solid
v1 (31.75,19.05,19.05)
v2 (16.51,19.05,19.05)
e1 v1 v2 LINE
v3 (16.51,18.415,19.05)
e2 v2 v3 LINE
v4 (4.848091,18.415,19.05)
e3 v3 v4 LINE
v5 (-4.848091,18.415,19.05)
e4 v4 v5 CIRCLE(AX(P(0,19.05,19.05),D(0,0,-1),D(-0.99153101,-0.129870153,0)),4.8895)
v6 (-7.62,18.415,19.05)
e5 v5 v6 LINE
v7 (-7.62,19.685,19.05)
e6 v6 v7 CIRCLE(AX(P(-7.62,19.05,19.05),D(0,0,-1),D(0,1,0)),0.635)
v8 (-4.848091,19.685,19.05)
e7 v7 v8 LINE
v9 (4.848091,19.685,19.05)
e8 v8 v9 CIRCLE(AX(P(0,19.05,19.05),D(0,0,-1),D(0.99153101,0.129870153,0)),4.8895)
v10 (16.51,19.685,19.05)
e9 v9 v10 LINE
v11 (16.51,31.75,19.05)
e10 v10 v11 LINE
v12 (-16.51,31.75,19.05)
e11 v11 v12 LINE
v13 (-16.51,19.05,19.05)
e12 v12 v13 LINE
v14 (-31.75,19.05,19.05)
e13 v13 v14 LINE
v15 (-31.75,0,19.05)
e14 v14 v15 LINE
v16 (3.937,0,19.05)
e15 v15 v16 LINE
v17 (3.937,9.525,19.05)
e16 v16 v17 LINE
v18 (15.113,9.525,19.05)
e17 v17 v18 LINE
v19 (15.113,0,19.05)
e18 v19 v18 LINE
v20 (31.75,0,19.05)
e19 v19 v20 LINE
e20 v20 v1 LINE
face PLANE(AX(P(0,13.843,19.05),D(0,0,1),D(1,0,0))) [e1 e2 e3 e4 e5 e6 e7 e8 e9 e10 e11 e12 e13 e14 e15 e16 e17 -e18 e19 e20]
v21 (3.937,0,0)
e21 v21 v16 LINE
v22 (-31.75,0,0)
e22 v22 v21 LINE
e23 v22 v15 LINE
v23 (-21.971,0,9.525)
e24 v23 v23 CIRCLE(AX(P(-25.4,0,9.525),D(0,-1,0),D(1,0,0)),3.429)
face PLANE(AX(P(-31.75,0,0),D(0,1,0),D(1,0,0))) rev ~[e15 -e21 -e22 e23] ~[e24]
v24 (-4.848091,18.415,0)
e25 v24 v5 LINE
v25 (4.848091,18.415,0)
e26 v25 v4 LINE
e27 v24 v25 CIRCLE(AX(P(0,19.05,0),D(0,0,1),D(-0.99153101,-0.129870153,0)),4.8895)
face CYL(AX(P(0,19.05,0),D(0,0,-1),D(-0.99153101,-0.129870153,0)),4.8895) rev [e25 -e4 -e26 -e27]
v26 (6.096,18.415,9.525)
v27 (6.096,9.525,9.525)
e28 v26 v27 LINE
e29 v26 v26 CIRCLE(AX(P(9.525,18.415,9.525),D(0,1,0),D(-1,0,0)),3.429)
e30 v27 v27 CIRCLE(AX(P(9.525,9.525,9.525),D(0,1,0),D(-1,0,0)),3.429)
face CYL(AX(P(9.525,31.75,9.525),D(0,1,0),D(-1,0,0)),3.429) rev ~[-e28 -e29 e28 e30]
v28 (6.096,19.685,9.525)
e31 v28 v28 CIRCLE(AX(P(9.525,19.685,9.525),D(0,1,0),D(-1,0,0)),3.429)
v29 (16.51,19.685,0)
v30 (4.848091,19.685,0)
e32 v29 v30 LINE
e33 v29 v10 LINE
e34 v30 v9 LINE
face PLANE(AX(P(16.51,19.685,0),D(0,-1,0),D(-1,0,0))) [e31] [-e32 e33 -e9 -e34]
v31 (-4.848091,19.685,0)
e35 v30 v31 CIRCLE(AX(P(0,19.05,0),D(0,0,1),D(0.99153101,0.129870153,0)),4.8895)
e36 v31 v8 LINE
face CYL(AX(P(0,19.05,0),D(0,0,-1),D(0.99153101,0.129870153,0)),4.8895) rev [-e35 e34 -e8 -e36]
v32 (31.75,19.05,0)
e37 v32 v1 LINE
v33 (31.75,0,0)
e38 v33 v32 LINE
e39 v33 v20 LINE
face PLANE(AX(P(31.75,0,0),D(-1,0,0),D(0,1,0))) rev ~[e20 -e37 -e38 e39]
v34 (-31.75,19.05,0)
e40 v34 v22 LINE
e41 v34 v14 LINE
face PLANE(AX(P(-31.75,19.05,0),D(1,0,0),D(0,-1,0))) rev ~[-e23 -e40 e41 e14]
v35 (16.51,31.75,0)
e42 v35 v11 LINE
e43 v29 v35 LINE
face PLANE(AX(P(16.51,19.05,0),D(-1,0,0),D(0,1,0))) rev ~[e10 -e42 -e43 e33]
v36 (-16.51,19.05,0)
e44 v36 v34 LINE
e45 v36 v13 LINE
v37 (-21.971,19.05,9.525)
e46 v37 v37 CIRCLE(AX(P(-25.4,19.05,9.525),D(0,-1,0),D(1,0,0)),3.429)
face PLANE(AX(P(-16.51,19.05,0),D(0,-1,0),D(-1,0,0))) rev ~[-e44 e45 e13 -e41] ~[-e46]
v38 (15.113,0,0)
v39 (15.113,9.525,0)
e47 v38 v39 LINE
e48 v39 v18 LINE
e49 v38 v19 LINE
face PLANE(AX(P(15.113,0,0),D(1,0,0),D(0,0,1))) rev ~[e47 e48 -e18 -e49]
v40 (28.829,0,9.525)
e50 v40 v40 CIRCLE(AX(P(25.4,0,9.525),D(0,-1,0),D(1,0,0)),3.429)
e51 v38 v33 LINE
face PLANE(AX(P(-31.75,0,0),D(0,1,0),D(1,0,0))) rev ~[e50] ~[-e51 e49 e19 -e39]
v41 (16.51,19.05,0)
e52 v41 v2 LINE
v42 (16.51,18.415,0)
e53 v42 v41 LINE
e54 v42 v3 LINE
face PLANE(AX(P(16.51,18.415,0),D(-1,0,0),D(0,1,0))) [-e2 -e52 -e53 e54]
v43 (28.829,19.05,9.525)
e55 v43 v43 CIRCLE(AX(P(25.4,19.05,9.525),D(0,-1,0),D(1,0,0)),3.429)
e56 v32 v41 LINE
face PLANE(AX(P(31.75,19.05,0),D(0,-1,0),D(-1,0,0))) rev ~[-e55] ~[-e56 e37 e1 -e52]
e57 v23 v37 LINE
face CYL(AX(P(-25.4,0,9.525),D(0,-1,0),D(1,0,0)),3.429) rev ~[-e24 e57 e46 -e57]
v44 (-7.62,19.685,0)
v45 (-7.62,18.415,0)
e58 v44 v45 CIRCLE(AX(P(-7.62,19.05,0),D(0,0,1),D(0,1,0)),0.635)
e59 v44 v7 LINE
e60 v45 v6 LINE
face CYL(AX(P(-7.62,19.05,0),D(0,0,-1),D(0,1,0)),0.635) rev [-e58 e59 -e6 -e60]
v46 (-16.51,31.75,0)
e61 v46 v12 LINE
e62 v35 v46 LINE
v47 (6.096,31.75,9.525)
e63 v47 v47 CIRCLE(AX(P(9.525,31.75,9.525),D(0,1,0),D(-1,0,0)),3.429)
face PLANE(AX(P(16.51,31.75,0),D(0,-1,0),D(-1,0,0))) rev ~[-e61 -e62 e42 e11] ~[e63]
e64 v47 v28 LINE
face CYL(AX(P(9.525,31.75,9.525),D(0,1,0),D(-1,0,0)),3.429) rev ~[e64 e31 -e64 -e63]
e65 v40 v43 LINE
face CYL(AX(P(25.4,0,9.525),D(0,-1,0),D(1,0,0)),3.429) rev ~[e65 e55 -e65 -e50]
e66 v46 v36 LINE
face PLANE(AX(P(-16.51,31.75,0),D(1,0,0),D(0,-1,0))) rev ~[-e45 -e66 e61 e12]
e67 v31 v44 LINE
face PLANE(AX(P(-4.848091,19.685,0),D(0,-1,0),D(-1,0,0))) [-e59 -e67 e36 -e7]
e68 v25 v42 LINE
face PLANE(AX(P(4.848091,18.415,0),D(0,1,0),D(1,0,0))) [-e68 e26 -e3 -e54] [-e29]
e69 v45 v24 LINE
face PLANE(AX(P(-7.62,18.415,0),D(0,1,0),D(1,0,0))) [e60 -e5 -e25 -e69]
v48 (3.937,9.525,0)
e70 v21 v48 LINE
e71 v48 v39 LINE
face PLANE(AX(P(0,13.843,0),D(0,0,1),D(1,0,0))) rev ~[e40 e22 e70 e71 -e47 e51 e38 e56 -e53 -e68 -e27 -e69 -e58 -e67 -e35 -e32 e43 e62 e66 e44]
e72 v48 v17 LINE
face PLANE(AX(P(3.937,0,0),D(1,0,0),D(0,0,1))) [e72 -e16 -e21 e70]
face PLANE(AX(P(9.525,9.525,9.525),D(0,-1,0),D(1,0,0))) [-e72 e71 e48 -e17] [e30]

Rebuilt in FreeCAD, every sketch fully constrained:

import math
import FreeCAD as App
import Part
import Sketcher
Q = App.Units.Quantity


def add_polygon(sketch, points):
    """Adds a closed chain of lines whose ends are joined by coincident constraints."""
    first, n = sketch.GeometryCount, len(points)
    for a, b in zip(points, points[1:] + points[:1]):
        sketch.addGeometry(Part.LineSegment(App.Vector(*a, 0), App.Vector(*b, 0)), False)
    for i in range(n):
        sketch.addConstraint(Sketcher.Constraint("Coincident", first + i, 2, first + (i + 1) % n, 1))

doc = App.newDocument("Part")
body = doc.addObject("PartDesign::Body", "Body")

# Sketch on XY plane
sketch1 = body.newObject("Sketcher::SketchObject", "Sketch")
sketch1.AttachmentSupport = (doc.getObject("XY_Plane"), [""])
sketch1.MapMode = "FlatFace"
add_polygon(sketch1, [(-32, 19), (-32, 0), (32, 0), (32, 19), (17, 19), (17, 32), (-17, 32), (-17, 19)])  # lines 0-7
sketch1.addConstraint([
    Sketcher.Constraint("Vertical", 0),
    Sketcher.Constraint("Horizontal", 1),
    Sketcher.Constraint("Vertical", 2),
    Sketcher.Constraint("Horizontal", 3),
    Sketcher.Constraint("Vertical", 4),
    Sketcher.Constraint("Horizontal", 5),
    Sketcher.Constraint("Vertical", 6),
    Sketcher.Constraint("Horizontal", 7),
    Sketcher.Constraint("Symmetric", 0, 2, 1, 2, -1, 1),
    Sketcher.Constraint("Symmetric", 3, 2, 6, 2, -2),
    Sketcher.Constraint("DistanceX", 1, 1, 1, 2, Q("2.5 in")),
    Sketcher.Constraint("DistanceX", 3, 2, 3, 1, Q("0.6 in")),
    Sketcher.Constraint("DistanceY", 4, 1, 4, 2, Q("0.5 in")),
    Sketcher.Constraint("DistanceY", 0, 2, 0, 1, Q("0.75 in")),
])
pad1 = body.newObject("PartDesign::Pad", "Pad")
pad1.Profile = sketch1
pad1.Length = Q("0.75 in")

# Sketch on XY plane
sketch2 = body.newObject("Sketcher::SketchObject", "Sketch001")
sketch2.AttachmentSupport = (doc.getObject("XY_Plane"), [""])
sketch2.MapMode = "FlatFace"
sketch2.addGeometry([
    Part.LineSegment(App.Vector(-7.6, 18.4, 0), App.Vector(-4.8, 18.4, 0)),  # 0
    Part.ArcOfCircle(Part.Circle(App.Vector(0, 19.1, 0), App.Vector(0, 0, 1), 4.9), math.radians(-173), math.radians(-7)),  # 1
    Part.LineSegment(App.Vector(4.8, 18.4, 0), App.Vector(16.5, 18.4, 0)),  # 2
    Part.LineSegment(App.Vector(16.5, 18.4, 0), App.Vector(16.5, 19.7, 0)),  # 3
    Part.LineSegment(App.Vector(16.5, 19.7, 0), App.Vector(4.8, 19.7, 0)),  # 4
    Part.ArcOfCircle(Part.Circle(App.Vector(0, 19, 0), App.Vector(0, 0, 1), 4.9), math.radians(7), math.radians(173)),  # 5
    Part.LineSegment(App.Vector(-4.8, 19.7, 0), App.Vector(-7.6, 19.7, 0)),  # 6
    Part.ArcOfCircle(Part.Circle(App.Vector(-7.6, 19.1, 0), App.Vector(0, 0, 1), 0.6), math.radians(90), math.radians(270)),  # 7
], False)
sketch2.addConstraint([
    Sketcher.Constraint("Coincident", 0, 2, 1, 1),
    Sketcher.Constraint("Coincident", 1, 2, 2, 1),
    Sketcher.Constraint("Coincident", 2, 2, 3, 1),
    Sketcher.Constraint("Coincident", 3, 2, 4, 1),
    Sketcher.Constraint("Coincident", 4, 2, 5, 1),
    Sketcher.Constraint("Coincident", 5, 2, 6, 1),
    Sketcher.Constraint("Tangent", 6, 2, 7, 1),
    Sketcher.Constraint("Tangent", 7, 2, 0, 1),
    Sketcher.Constraint("Horizontal", 0),
    Sketcher.Constraint("Horizontal", 2),
    Sketcher.Constraint("Vertical", 3),
    Sketcher.Constraint("Horizontal", 4),
    Sketcher.Constraint("Horizontal", 6),
    Sketcher.Constraint("Coincident", 5, 3, 1, 3),
    Sketcher.Constraint("Equal", 1, 5),
    Sketcher.Constraint("Symmetric", 0, 2, 1, 2, -2),
    Sketcher.Constraint("Horizontal", 5, 3, 7, 3),
    Sketcher.Constraint("Horizontal", 4, 2, 5, 2),
    Sketcher.Constraint("Radius", 7, Q("0.025 in")),
    Sketcher.Constraint("DistanceX", 7, 3, -1, 1, Q("0.3 in")),
    Sketcher.Constraint("Radius", 1, Q("0.1925 in")),
    Sketcher.Constraint("DistanceY", -1, 1, 1, 3, Q("0.75 in")),
    Sketcher.Constraint("DistanceX", -1, 1, 2, 2, Q("0.65 in")),
])
pocket1 = body.newObject("PartDesign::Pocket", "Pocket")
pocket1.Profile = sketch2
pocket1.Type = "ThroughAll"
pocket1.Reversed = True

# Sketch on XZ plane
sketch3 = body.newObject("Sketcher::SketchObject", "Sketch002")
sketch3.AttachmentSupport = (doc.getObject("XZ_Plane"), [""])
sketch3.MapMode = "FlatFace"
sketch3.addGeometry([
    Part.Circle(App.Vector(25.4, 9.5, 0), App.Vector(0, 0, 1), 3.4),
    Part.Circle(App.Vector(-25.4, 9.5, 0), App.Vector(0, 0, 1), 3.4),
], False)
sketch3.addConstraint([
    Sketcher.Constraint("Equal", 0, 1),
    Sketcher.Constraint("Symmetric", 0, 3, 1, 3, -2),
    Sketcher.Constraint("Diameter", 0, Q("0.27 in")),
    Sketcher.Constraint("DistanceX", -1, 1, 0, 3, Q("1 in")),
    Sketcher.Constraint("DistanceY", -1, 1, 0, 3, Q("0.375 in")),
])
pocket2 = body.newObject("PartDesign::Pocket", "Pocket001")
pocket2.Profile = sketch3
pocket2.Type = "ThroughAll"

# Sketch on XZ plane
sketch4 = body.newObject("Sketcher::SketchObject", "Sketch003")
sketch4.AttachmentSupport = (doc.getObject("XZ_Plane"), [""])
sketch4.MapMode = "FlatFace"
add_polygon(sketch4, [(4, 19), (4, 0), (15, 0), (15, 19)])  # lines 0-3
sketch4.addConstraint([
    Sketcher.Constraint("Vertical", 0),
    Sketcher.Constraint("Horizontal", 1),
    Sketcher.Constraint("Vertical", 2),
    Sketcher.Constraint("Horizontal", 3),
    Sketcher.Constraint("PointOnObject", 0, 2, -1),
    Sketcher.Constraint("DistanceX", 1, 1, 1, 2, Q("0.44 in")),
    Sketcher.Constraint("DistanceY", 0, 2, 0, 1, Q("0.75 in")),
    Sketcher.Constraint("DistanceX", -1, 1, 0, 2, Q("0.155 in")),
])
pocket3 = body.newObject("PartDesign::Pocket", "Pocket002")
pocket3.Profile = sketch4
pocket3.Length = Q("0.375 in")

# Sketch on XZ plane
sketch5 = body.newObject("Sketcher::SketchObject", "Sketch004")
sketch5.AttachmentSupport = (doc.getObject("XZ_Plane"), [""])
sketch5.MapMode = "FlatFace"
sketch5.AttachmentOffset = App.Placement(App.Vector(0, 0, -1.25 * 25.4), App.Rotation())
sketch5.addGeometry(Part.Circle(App.Vector(9.5, 9.5, 0), App.Vector(0, 0, 1), 3.4), False)
sketch5.addConstraint([
    Sketcher.Constraint("Diameter", 0, Q("0.27 in")),
    Sketcher.Constraint("DistanceX", -1, 1, 0, 3, Q("0.375 in")),
    Sketcher.Constraint("DistanceY", -1, 1, 0, 3, Q("0.375 in")),
])
pocket4 = body.newObject("PartDesign::Pocket", "Pocket003")
pocket4.Profile = sketch5
pocket4.Type = "ThroughAll"
pocket4.Reversed = True

doc.recompute()
